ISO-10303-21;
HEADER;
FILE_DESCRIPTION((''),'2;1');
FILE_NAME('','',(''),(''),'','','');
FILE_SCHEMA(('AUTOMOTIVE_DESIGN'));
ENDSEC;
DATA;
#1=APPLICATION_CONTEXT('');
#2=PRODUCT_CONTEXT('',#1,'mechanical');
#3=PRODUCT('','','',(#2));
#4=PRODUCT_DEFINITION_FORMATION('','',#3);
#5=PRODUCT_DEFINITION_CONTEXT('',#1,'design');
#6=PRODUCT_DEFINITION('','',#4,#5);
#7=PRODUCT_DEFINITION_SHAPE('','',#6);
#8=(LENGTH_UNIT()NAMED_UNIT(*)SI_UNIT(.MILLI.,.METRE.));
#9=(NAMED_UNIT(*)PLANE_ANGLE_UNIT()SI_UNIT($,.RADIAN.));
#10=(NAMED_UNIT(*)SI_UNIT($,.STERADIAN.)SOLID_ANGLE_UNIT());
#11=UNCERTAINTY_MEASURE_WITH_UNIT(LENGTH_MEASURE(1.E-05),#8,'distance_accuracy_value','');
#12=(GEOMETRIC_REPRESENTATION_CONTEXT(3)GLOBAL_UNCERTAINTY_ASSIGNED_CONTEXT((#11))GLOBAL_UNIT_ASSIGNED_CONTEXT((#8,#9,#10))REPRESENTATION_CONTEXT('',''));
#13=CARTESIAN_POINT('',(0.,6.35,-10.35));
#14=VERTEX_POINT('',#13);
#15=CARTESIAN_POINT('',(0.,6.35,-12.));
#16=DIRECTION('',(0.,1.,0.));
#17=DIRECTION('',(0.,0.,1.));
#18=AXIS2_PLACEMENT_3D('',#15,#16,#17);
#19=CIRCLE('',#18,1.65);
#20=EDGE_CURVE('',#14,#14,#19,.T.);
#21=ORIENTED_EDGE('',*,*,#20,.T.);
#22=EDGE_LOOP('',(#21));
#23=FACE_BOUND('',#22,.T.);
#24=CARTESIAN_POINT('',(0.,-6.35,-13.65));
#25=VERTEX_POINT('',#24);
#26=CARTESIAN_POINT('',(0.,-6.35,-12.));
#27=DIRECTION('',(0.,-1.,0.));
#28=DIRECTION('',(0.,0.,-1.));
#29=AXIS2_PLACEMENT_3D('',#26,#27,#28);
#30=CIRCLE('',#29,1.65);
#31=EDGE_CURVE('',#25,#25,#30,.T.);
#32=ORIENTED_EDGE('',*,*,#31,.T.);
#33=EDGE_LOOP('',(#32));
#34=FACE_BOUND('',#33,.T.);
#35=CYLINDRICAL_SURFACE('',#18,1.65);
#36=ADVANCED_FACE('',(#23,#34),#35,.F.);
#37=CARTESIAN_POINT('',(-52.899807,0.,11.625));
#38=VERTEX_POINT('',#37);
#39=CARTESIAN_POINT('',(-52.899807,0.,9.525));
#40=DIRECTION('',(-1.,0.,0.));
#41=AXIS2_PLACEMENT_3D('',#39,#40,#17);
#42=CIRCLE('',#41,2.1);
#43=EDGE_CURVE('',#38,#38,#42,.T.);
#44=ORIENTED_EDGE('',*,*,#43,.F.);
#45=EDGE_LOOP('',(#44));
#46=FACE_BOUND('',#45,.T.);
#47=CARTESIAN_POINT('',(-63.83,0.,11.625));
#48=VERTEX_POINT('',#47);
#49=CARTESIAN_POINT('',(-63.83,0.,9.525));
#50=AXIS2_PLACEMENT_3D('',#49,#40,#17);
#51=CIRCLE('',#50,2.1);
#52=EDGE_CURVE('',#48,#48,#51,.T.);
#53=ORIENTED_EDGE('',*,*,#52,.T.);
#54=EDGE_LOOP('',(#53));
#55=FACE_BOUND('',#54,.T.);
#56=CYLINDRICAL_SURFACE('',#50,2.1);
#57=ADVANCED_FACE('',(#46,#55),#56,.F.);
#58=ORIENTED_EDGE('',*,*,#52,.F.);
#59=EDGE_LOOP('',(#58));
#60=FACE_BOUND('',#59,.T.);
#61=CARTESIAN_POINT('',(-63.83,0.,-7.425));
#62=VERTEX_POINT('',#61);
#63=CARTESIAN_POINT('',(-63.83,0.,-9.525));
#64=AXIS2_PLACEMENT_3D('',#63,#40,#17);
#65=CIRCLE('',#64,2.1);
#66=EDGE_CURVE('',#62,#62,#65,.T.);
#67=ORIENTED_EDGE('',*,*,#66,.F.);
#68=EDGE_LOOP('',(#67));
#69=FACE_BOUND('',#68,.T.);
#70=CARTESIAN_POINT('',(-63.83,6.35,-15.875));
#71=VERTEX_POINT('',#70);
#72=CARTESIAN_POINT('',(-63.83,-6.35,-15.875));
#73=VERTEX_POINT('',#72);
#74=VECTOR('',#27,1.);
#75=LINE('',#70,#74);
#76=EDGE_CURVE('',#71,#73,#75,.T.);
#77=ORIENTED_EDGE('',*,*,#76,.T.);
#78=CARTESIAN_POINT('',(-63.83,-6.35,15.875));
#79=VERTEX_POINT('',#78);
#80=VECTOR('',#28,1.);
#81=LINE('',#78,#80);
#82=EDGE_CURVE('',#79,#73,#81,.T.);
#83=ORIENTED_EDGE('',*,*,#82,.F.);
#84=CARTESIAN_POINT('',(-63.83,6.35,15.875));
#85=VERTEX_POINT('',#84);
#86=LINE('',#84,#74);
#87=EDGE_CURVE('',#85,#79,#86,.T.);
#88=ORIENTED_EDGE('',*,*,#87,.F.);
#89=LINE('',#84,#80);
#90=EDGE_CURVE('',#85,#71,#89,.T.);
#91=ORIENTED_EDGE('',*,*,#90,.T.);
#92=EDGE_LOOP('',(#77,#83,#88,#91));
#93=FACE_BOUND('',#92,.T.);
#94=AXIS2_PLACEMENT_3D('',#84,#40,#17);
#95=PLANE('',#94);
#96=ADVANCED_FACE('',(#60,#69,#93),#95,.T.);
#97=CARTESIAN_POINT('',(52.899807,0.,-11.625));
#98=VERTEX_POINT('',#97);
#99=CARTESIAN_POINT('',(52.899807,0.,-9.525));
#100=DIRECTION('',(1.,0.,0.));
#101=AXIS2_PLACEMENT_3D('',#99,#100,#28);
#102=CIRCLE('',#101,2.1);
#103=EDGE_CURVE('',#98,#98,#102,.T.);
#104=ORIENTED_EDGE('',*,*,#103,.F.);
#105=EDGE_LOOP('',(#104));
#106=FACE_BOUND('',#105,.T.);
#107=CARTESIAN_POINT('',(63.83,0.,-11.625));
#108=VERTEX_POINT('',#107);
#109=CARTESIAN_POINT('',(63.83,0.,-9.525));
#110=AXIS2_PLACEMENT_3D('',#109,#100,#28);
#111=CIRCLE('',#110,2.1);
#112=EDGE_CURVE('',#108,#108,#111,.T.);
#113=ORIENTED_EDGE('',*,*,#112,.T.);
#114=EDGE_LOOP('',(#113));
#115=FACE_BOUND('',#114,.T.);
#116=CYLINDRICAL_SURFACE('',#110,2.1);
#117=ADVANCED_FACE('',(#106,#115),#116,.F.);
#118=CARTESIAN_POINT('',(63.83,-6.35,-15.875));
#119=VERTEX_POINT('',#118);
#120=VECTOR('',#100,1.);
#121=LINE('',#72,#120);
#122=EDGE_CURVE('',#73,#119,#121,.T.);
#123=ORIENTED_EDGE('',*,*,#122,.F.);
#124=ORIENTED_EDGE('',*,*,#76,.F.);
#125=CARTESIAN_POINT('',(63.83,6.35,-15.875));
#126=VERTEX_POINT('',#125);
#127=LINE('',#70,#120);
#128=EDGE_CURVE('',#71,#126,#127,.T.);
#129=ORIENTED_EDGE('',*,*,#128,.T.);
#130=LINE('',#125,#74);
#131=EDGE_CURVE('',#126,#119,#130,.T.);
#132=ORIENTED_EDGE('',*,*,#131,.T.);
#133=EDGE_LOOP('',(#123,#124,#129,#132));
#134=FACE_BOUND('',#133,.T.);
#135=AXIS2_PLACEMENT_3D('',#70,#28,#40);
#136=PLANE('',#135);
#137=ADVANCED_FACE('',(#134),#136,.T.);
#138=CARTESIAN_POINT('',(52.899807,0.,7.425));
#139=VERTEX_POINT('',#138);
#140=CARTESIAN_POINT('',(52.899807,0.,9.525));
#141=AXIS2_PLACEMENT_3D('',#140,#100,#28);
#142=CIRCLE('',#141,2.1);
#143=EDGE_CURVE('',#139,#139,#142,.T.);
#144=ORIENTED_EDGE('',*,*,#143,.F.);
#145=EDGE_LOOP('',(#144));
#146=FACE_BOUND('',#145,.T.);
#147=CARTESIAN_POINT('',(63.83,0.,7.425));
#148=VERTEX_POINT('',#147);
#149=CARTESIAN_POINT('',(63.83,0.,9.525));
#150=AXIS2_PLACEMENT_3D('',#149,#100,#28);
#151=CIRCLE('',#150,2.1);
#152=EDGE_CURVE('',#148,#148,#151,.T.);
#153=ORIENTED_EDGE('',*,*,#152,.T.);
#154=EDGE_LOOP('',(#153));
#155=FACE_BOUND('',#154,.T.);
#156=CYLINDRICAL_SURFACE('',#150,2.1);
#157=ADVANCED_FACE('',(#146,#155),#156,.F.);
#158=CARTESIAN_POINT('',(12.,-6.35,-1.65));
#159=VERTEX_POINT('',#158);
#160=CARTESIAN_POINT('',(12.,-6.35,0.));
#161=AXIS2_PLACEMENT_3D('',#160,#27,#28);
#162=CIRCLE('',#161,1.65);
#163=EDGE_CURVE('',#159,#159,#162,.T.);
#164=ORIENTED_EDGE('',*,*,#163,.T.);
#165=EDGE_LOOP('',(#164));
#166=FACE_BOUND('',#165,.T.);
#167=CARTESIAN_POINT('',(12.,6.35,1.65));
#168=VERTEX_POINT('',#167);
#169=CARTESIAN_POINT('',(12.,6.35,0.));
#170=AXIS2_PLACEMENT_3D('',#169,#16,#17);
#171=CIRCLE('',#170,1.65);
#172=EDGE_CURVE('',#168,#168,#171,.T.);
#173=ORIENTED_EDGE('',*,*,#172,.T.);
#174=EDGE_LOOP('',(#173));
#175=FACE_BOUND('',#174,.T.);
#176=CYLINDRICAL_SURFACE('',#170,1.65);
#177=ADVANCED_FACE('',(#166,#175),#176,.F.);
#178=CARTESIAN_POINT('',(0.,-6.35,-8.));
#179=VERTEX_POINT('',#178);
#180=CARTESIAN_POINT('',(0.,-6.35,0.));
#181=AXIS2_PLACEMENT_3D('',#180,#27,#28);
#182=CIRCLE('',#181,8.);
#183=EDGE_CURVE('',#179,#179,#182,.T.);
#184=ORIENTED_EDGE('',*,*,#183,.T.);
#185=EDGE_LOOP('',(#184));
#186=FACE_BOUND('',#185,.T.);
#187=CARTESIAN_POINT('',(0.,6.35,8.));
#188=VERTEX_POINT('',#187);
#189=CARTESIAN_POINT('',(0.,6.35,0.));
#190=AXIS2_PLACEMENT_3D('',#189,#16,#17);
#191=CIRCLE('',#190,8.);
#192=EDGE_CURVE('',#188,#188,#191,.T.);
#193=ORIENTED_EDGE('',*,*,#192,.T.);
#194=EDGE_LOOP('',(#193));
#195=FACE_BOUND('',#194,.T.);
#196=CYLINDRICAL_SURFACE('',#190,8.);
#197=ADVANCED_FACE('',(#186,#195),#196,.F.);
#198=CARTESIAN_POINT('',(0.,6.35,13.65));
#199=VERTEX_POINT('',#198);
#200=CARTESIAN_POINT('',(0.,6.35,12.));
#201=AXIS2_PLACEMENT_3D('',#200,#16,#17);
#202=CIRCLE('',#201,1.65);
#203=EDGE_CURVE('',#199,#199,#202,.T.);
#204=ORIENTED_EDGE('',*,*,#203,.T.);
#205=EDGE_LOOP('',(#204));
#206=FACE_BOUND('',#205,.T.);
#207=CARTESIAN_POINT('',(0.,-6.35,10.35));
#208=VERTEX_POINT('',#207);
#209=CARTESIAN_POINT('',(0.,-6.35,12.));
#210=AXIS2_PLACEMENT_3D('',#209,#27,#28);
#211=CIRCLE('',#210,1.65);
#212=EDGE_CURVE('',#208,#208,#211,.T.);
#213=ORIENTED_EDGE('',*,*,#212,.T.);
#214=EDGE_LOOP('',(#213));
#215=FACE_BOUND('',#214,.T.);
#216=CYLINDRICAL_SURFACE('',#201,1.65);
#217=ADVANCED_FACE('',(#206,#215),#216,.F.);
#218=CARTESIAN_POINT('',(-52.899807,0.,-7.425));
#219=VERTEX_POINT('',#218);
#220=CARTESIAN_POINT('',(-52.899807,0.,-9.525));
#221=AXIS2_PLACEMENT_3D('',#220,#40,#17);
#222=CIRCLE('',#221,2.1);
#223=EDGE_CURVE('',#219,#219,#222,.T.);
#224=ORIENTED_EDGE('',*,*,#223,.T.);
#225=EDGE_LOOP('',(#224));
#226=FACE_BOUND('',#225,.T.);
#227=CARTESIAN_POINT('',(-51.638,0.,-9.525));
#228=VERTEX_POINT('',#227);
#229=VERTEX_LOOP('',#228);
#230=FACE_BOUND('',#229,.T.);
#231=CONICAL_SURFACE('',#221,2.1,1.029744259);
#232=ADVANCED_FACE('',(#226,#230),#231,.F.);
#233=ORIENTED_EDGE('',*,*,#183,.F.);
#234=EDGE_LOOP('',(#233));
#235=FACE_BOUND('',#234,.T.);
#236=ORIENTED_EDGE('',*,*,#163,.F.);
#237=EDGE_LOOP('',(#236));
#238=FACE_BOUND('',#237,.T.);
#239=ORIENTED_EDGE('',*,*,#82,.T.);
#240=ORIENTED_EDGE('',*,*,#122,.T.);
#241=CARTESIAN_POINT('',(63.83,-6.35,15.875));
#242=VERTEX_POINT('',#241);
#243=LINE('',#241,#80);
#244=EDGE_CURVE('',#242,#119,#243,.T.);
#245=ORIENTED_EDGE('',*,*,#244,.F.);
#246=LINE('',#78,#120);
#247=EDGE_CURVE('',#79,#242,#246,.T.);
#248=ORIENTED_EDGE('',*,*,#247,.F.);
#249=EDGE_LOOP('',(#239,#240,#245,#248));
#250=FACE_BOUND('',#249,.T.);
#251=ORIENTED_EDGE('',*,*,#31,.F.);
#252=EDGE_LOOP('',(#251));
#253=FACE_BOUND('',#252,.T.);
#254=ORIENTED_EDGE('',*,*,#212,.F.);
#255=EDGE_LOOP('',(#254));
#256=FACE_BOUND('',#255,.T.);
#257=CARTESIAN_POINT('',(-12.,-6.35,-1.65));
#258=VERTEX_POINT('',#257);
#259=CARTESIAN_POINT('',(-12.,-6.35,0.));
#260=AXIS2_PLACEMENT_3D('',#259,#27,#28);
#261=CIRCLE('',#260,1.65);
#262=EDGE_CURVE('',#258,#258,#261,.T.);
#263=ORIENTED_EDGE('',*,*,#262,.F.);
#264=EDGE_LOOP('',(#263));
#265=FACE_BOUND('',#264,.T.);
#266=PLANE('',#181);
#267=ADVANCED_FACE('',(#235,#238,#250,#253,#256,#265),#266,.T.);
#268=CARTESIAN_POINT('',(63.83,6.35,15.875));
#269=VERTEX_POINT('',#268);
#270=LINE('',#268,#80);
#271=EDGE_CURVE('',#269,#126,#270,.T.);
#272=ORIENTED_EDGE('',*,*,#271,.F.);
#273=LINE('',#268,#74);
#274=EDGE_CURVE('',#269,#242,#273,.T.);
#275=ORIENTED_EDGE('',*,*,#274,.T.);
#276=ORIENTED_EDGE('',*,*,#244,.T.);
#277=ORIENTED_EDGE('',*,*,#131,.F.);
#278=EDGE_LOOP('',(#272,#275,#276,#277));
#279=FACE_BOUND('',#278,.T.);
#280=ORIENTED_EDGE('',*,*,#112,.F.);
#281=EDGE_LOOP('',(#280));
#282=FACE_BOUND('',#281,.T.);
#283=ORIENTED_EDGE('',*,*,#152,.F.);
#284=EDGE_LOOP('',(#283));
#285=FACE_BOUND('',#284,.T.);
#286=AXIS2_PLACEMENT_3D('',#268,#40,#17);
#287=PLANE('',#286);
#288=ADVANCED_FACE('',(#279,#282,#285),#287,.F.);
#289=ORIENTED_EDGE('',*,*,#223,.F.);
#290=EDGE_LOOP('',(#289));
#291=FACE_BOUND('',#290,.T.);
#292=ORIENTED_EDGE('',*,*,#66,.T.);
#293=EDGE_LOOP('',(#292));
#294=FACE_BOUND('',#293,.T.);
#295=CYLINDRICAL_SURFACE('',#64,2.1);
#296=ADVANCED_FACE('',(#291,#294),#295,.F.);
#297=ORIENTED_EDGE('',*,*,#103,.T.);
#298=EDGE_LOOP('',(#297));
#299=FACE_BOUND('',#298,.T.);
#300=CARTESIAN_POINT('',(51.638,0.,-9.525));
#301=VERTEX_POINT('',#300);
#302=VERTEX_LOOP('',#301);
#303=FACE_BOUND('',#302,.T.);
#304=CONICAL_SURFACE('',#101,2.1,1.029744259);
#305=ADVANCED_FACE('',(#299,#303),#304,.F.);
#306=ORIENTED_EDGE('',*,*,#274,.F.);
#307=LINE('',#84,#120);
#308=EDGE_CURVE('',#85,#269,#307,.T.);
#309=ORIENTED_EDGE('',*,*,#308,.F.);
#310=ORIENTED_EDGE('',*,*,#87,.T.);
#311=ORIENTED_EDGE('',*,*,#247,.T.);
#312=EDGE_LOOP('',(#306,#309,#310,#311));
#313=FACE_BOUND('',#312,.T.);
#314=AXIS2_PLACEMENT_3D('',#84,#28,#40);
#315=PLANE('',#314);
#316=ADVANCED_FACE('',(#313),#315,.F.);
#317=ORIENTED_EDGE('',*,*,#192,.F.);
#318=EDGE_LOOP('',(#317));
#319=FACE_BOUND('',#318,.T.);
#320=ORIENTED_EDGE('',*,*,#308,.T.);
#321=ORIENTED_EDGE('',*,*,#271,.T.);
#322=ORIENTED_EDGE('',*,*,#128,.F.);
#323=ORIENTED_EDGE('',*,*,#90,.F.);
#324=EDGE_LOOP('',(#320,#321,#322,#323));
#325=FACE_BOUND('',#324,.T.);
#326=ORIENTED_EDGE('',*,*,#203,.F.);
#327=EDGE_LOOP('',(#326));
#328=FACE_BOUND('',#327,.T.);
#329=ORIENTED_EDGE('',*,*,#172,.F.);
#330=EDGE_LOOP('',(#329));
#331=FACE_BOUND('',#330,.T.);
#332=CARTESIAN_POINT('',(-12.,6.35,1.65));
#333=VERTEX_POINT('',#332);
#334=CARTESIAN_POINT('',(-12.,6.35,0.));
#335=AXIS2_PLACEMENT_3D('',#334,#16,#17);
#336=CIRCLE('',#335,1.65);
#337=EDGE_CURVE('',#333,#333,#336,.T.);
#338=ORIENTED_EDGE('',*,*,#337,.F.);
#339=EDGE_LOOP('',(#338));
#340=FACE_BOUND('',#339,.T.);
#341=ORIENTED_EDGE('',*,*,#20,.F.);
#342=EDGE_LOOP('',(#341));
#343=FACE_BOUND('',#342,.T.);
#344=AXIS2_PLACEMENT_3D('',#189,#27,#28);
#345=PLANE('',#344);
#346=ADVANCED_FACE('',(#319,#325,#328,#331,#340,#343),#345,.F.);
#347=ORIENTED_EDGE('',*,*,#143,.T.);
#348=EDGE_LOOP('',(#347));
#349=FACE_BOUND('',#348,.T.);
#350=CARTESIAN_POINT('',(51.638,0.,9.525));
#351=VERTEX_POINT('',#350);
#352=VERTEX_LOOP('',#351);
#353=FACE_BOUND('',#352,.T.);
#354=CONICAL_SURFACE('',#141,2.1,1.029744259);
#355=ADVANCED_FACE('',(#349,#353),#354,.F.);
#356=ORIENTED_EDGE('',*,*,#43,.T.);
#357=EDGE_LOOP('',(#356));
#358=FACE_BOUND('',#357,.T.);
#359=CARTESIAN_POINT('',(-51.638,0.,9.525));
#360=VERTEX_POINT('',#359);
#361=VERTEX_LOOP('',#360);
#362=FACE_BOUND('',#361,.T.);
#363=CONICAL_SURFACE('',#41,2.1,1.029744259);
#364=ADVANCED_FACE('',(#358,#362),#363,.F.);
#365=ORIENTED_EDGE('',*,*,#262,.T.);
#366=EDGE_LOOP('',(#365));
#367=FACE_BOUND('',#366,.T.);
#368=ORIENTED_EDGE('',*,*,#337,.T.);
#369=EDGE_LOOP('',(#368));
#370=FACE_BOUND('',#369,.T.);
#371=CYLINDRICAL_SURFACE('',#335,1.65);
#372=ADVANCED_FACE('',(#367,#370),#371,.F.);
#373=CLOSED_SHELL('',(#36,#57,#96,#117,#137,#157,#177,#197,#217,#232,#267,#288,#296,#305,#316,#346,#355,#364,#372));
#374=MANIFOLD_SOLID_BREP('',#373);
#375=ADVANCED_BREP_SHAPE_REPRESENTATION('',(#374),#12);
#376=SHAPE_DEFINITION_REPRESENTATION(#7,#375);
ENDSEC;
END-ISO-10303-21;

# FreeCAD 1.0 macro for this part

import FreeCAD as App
import Part
import Sketcher
Q = App.Units.Quantity


def add_polygon(sketch, points):
    """Adds a closed chain of lines whose ends are joined by coincident constraints."""
    first, n = sketch.GeometryCount, len(points)
    for a, b in zip(points, points[1:] + points[:1]):
        sketch.addGeometry(Part.LineSegment(App.Vector(*a, 0), App.Vector(*b, 0)), False)
    for i in range(n):
        sketch.addConstraint(Sketcher.Constraint("Coincident", first + i, 2, first + (i + 1) % n, 1))

doc = App.newDocument("Part")
body = doc.addObject("PartDesign::Body", "Body")

sketch1 = doc.addObject("Sketcher::SketchObject", "Sketch")
body.addObject(sketch1)
sketch1.AttachmentSupport = (doc.XZ_Plane, [""])
sketch1.MapMode = "FlatFace"
add_polygon(sketch1, [(-63.83, -15.875), (-63.83, 15.875), (63.83, 15.875), (63.83, -15.875)])
sketch1.addConstraint(Sketcher.Constraint("Vertical", 0))
sketch1.addConstraint(Sketcher.Constraint("Horizontal", 1))
sketch1.addConstraint(Sketcher.Constraint("Vertical", 2))
sketch1.addConstraint(Sketcher.Constraint("Horizontal", 3))
sketch1.addConstraint(Sketcher.Constraint("Symmetric", 0, 2, 2, 2, -1, 1))
sketch1.addConstraint(Sketcher.Constraint("DistanceX", 1, 1, 1, 2, Q("127.66 mm")))
sketch1.addConstraint(Sketcher.Constraint("DistanceY", 0, 1, 0, 2, Q("31.75 mm")))
pad1 = doc.addObject("PartDesign::Pad", "Pad")
body.addObject(pad1)
pad1.Profile = sketch1
pad1.Length = 12.7
pad1.Midplane = True

sketch2 = doc.addObject("Sketcher::SketchObject", "Sketch001")
body.addObject(sketch2)
sketch2.AttachmentSupport = (doc.XZ_Plane, [""])
sketch2.MapMode = "FlatFace"
add_polygon(sketch2, [(-51.638, 9.525), (-63.83, 9.525), (-63.83, 11.625), (-52.899807, 11.625)])
sketch2.addGeometry(Part.LineSegment(App.Vector(-63.83, 9.525, 0), App.Vector(-51.638, 9.525, 0)), True)
sketch2.addConstraint(Sketcher.Constraint("Horizontal", 0))
sketch2.addConstraint(Sketcher.Constraint("Vertical", 1))
sketch2.addConstraint(Sketcher.Constraint("Horizontal", 2))
sketch2.addConstraint(Sketcher.Constraint("Horizontal", 4))
sketch2.addConstraint(Sketcher.Constraint("Coincident", 4, 1, 0, 2))
sketch2.addConstraint(Sketcher.Constraint("Equal", 0, 4))
sketch2.addConstraint(Sketcher.Constraint("Angle", 3, Q("-59 deg")))
sketch2.addConstraint(Sketcher.Constraint("DistanceY", 1, 1, 1, 2, Q("2.1 mm")))
sketch2.addConstraint(Sketcher.Constraint("DistanceX", 0, 2, 0, 1, Q("12.192 mm")))
sketch2.addConstraint(Sketcher.Constraint("DistanceX", 0, 2, -1, 1, Q("63.83 mm")))
sketch2.addConstraint(Sketcher.Constraint("DistanceY", -1, 1, 0, 2, Q("9.525 mm")))
groove = doc.addObject("PartDesign::Groove", "Groove")
body.addObject(groove)
groove.Profile = sketch2
groove.ReferenceAxis = (sketch2, ["Axis0"])
groove.Angle = 360
doc.recompute()

linearpattern = doc.addObject("PartDesign::LinearPattern", "LinearPattern")
body.addObject(linearpattern)
linearpattern.Originals = [groove]
linearpattern.Direction = (doc.Z_Axis, [""])
linearpattern.Mode = "offset"
linearpattern.Offset = 19.05
linearpattern.Occurrences = 2
linearpattern.Reversed = True
body.Tip = linearpattern
doc.recompute()

mirrored = doc.addObject("PartDesign::Mirrored", "Mirrored")
body.addObject(mirrored)
mirrored.Originals = [groove]
mirrored.MirrorPlane = (doc.YZ_Plane, [""])
body.Tip = mirrored

sketch3 = doc.addObject("Sketcher::SketchObject", "Sketch002")
body.addObject(sketch3)
sketch3.AttachmentSupport = (doc.XZ_Plane, [""])
sketch3.MapMode = "FlatFace"
add_polygon(sketch3, [(63.83, -9.525), (51.638, -9.525), (52.899807, -7.425), (63.83, -7.425)])
sketch3.addGeometry(Part.LineSegment(App.Vector(51.638, -9.525, 0), App.Vector(63.83, -9.525, 0)), True)
sketch3.addConstraint(Sketcher.Constraint("Horizontal", 0))
sketch3.addConstraint(Sketcher.Constraint("Horizontal", 2))
sketch3.addConstraint(Sketcher.Constraint("Vertical", 3))
sketch3.addConstraint(Sketcher.Constraint("Horizontal", 4))
sketch3.addConstraint(Sketcher.Constraint("Coincident", 4, 1, 0, 2))
sketch3.addConstraint(Sketcher.Constraint("Vertical", 2, 2, 4, 2))
sketch3.addConstraint(Sketcher.Constraint("Angle", 1, Q("59 deg")))
sketch3.addConstraint(Sketcher.Constraint("DistanceY", 3, 2, 3, 1, Q("2.1 mm")))
sketch3.addConstraint(Sketcher.Constraint("DistanceX", 0, 2, 0, 1, Q("12.192 mm")))
sketch3.addConstraint(Sketcher.Constraint("DistanceX", -1, 1, 2, 2, Q("63.83 mm")))
sketch3.addConstraint(Sketcher.Constraint("DistanceY", 0, 2, -1, 1, Q("9.525 mm")))
groove2 = doc.addObject("PartDesign::Groove", "Groove001")
body.addObject(groove2)
groove2.Profile = sketch3
groove2.ReferenceAxis = (sketch3, ["Axis0"])
groove2.Angle = 360

sketch4 = doc.addObject("Sketcher::SketchObject", "Sketch003")
body.addObject(sketch4)
sketch4.AttachmentSupport = (doc.XZ_Plane, [""])
sketch4.MapMode = "FlatFace"
sketch4.AttachmentOffset = App.Placement(App.Vector(0, 0, -6.35), App.Rotation())
sketch4.addGeometry(Part.Circle(App.Vector(0, 0, 0), App.Vector(0, 0, 1), 8), False)
sketch4.addConstraint(Sketcher.Constraint("Coincident", 0, 3, -1, 1))
sketch4.addConstraint(Sketcher.Constraint("Diameter", 0, Q("16 mm")))
doc.recompute()
hole = doc.addObject("PartDesign::Hole", "Hole")
body.addObject(hole)
hole.Profile = sketch4
hole.ThreadType = "None"
hole.Diameter = 16
hole.DepthType = "ThroughAll"
hole.Reversed = True

sketch5 = doc.addObject("Sketcher::SketchObject", "Sketch004")
body.addObject(sketch5)
sketch5.AttachmentSupport = (doc.XZ_Plane, [""])
sketch5.MapMode = "FlatFace"
sketch5.AttachmentOffset = App.Placement(App.Vector(0, 0, -6.35), App.Rotation())
sketch5.addGeometry(Part.Circle(App.Vector(0, -12, 0), App.Vector(0, 0, 1), 1.65), False)
sketch5.addGeometry(Part.Circle(App.Vector(12, 0, 0), App.Vector(0, 0, 1), 1.65), False)
sketch5.addGeometry(Part.Circle(App.Vector(-12, 0, 0), App.Vector(0, 0, 1), 1.65), False)
sketch5.addGeometry(Part.Circle(App.Vector(0, 12, 0), App.Vector(0, 0, 1), 1.65), False)
sketch5.addConstraint(Sketcher.Constraint("Equal", 0, 1))
sketch5.addConstraint(Sketcher.Constraint("Equal", 1, 2))
sketch5.addConstraint(Sketcher.Constraint("Equal", 2, 3))
sketch5.addConstraint(Sketcher.Constraint("Symmetric", 1, 3, 2, 3, -1, 1))
sketch5.addConstraint(Sketcher.Constraint("Symmetric", 0, 3, 3, 3, -1, 1))
sketch5.addConstraint(Sketcher.Constraint("PointOnObject", 0, 3, -2))
sketch5.addConstraint(Sketcher.Constraint("PointOnObject", 1, 3, -1))
sketch5.addConstraint(Sketcher.Constraint("Diameter", 0, Q("3.3 mm")))
sketch5.addConstraint(Sketcher.Constraint("DistanceY", 0, 3, -1, 1, Q("12 mm")))
sketch5.addConstraint(Sketcher.Constraint("DistanceX", -1, 1, 1, 3, Q("12 mm")))
doc.recompute()
hole2 = doc.addObject("PartDesign::Hole", "Hole001")
body.addObject(hole2)
hole2.Profile = sketch5
hole2.ThreadType = "None"
hole2.Diameter = 3.3
hole2.DepthType = "ThroughAll"
hole2.Reversed = True

doc.recompute()
